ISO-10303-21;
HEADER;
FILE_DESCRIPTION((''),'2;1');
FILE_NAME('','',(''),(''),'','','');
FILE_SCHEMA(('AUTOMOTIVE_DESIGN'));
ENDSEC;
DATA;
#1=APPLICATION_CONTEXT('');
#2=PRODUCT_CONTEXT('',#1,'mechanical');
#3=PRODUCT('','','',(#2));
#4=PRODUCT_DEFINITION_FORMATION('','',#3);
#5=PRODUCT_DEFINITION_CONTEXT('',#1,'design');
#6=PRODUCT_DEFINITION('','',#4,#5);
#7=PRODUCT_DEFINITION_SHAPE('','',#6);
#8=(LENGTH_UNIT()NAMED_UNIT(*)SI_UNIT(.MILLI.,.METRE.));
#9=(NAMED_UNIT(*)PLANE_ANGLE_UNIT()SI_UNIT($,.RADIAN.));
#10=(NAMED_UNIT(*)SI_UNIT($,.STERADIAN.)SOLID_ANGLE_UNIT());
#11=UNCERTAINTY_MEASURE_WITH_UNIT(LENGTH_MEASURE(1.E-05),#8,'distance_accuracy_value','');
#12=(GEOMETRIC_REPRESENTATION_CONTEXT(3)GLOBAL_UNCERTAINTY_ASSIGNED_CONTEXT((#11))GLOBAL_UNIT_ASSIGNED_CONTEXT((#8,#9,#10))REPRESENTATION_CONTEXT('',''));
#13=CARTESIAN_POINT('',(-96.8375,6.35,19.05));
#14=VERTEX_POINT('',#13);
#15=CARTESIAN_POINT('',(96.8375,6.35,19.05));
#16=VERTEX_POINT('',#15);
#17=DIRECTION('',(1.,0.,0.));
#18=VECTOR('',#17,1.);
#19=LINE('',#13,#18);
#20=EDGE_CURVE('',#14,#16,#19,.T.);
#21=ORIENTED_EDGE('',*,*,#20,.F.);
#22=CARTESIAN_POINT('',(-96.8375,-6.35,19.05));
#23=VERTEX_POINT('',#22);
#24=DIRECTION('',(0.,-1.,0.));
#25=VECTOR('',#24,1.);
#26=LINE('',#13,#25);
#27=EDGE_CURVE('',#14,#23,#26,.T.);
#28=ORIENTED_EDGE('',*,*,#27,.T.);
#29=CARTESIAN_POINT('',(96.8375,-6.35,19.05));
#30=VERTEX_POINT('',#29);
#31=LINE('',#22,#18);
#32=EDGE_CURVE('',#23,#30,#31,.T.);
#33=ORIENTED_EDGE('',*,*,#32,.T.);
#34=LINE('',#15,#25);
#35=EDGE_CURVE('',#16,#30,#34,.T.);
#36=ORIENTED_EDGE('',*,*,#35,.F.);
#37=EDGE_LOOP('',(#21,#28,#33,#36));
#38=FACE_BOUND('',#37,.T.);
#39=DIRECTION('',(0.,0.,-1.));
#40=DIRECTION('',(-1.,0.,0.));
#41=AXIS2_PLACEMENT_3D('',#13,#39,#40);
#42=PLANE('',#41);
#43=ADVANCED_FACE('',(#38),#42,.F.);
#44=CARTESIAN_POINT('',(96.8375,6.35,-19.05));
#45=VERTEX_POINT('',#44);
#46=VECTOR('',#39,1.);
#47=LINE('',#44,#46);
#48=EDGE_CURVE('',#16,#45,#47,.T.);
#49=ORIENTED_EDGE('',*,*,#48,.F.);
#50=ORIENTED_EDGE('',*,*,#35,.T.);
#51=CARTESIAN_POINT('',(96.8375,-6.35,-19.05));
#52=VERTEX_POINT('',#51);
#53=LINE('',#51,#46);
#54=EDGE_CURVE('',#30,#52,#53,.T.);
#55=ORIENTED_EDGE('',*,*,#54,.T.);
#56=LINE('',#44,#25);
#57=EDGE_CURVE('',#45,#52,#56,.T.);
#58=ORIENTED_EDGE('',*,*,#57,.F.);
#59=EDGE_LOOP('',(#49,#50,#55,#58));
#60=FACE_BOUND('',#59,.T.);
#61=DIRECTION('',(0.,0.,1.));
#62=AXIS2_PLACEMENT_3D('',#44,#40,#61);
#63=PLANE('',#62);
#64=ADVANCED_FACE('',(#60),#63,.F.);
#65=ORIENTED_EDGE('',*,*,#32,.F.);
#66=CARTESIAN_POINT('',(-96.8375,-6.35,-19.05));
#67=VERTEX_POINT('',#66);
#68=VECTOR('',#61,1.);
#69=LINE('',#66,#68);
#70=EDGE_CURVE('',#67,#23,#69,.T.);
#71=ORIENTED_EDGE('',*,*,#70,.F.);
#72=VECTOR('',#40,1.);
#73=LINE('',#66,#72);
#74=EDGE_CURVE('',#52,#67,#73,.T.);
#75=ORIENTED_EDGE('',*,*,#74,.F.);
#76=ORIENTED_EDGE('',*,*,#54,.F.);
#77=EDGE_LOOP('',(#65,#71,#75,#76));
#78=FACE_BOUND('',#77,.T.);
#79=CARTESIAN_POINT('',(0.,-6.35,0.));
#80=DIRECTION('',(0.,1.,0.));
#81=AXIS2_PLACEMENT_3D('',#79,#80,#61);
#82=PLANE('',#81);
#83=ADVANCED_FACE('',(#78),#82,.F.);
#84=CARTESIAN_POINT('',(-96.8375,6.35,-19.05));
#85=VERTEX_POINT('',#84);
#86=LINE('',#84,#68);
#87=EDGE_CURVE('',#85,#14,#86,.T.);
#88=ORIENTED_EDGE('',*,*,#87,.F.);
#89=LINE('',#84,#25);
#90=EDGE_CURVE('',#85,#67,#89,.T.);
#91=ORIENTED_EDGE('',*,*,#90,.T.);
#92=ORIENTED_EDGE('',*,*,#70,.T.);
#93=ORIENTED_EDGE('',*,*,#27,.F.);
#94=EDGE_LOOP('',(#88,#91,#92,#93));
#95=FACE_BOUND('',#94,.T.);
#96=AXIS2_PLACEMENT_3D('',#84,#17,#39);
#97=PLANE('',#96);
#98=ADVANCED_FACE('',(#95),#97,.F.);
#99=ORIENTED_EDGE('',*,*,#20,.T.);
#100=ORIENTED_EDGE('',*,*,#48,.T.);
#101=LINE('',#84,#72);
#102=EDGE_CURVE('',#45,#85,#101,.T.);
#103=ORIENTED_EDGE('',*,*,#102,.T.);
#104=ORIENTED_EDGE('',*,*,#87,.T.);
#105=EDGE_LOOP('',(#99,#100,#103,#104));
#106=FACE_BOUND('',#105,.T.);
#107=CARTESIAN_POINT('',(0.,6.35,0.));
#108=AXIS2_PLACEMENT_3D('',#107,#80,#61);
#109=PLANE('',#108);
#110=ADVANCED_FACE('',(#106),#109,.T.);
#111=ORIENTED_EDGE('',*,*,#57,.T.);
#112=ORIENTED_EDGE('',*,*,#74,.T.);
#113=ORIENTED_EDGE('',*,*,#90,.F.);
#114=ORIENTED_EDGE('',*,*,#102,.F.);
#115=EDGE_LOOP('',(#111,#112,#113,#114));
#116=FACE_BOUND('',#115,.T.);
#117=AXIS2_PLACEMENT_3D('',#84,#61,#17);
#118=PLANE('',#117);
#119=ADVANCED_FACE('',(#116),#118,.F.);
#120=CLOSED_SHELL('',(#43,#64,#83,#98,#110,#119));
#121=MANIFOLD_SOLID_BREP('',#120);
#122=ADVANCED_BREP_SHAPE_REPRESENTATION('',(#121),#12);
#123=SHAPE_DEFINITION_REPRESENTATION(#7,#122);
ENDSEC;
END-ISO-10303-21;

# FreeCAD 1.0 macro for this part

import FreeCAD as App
import Part
import Sketcher
from FreeCAD import Vector
Q = App.Units.Quantity


def add_polygon(sketch, points):
    """Adds a closed chain of lines whose ends are joined by coincident constraints."""
    first, n = sketch.GeometryCount, len(points)
    for a, b in zip(points, points[1:] + points[:1]):
        sketch.addGeometry(Part.LineSegment(App.Vector(*a, 0), App.Vector(*b, 0)), False)
    for i in range(n):
        sketch.addConstraint(Sketcher.Constraint("Coincident", first + i, 2, first + (i + 1) % n, 1))

doc = App.newDocument("Part")
body = doc.addObject("PartDesign::Body", "Body")

# Sketch on XZ plane
sketch1 = doc.addObject("Sketcher::SketchObject", "Sketch")
body.addObject(sketch1)
sketch1.AttachmentSupport = (doc.XZ_Plane, [""])
sketch1.MapMode = "FlatFace"
add_polygon(sketch1, [(-97, -19), (-97, 19), (97, 19), (97, -19)])  # lines 0-3
sketch1.addConstraint([
    Sketcher.Constraint("Vertical", 0),
    Sketcher.Constraint("Horizontal", 1),
    Sketcher.Constraint("Vertical", 2),
    Sketcher.Constraint("Horizontal", 3),
    Sketcher.Constraint("Symmetric", 0, 2, 2, 2, -1, 1),
    Sketcher.Constraint("DistanceY", 0, 1, 0, 2, Q("1.5 in")),
    Sketcher.Constraint("DistanceX", 1, 1, 1, 2, Q("7.625 in")),
])
pad1 = doc.addObject("PartDesign::Pad", "Pad")
body.addObject(pad1)
pad1.Profile = sketch1
pad1.Length = Q("0.5 in")
pad1.Midplane = True

doc.recompute()
